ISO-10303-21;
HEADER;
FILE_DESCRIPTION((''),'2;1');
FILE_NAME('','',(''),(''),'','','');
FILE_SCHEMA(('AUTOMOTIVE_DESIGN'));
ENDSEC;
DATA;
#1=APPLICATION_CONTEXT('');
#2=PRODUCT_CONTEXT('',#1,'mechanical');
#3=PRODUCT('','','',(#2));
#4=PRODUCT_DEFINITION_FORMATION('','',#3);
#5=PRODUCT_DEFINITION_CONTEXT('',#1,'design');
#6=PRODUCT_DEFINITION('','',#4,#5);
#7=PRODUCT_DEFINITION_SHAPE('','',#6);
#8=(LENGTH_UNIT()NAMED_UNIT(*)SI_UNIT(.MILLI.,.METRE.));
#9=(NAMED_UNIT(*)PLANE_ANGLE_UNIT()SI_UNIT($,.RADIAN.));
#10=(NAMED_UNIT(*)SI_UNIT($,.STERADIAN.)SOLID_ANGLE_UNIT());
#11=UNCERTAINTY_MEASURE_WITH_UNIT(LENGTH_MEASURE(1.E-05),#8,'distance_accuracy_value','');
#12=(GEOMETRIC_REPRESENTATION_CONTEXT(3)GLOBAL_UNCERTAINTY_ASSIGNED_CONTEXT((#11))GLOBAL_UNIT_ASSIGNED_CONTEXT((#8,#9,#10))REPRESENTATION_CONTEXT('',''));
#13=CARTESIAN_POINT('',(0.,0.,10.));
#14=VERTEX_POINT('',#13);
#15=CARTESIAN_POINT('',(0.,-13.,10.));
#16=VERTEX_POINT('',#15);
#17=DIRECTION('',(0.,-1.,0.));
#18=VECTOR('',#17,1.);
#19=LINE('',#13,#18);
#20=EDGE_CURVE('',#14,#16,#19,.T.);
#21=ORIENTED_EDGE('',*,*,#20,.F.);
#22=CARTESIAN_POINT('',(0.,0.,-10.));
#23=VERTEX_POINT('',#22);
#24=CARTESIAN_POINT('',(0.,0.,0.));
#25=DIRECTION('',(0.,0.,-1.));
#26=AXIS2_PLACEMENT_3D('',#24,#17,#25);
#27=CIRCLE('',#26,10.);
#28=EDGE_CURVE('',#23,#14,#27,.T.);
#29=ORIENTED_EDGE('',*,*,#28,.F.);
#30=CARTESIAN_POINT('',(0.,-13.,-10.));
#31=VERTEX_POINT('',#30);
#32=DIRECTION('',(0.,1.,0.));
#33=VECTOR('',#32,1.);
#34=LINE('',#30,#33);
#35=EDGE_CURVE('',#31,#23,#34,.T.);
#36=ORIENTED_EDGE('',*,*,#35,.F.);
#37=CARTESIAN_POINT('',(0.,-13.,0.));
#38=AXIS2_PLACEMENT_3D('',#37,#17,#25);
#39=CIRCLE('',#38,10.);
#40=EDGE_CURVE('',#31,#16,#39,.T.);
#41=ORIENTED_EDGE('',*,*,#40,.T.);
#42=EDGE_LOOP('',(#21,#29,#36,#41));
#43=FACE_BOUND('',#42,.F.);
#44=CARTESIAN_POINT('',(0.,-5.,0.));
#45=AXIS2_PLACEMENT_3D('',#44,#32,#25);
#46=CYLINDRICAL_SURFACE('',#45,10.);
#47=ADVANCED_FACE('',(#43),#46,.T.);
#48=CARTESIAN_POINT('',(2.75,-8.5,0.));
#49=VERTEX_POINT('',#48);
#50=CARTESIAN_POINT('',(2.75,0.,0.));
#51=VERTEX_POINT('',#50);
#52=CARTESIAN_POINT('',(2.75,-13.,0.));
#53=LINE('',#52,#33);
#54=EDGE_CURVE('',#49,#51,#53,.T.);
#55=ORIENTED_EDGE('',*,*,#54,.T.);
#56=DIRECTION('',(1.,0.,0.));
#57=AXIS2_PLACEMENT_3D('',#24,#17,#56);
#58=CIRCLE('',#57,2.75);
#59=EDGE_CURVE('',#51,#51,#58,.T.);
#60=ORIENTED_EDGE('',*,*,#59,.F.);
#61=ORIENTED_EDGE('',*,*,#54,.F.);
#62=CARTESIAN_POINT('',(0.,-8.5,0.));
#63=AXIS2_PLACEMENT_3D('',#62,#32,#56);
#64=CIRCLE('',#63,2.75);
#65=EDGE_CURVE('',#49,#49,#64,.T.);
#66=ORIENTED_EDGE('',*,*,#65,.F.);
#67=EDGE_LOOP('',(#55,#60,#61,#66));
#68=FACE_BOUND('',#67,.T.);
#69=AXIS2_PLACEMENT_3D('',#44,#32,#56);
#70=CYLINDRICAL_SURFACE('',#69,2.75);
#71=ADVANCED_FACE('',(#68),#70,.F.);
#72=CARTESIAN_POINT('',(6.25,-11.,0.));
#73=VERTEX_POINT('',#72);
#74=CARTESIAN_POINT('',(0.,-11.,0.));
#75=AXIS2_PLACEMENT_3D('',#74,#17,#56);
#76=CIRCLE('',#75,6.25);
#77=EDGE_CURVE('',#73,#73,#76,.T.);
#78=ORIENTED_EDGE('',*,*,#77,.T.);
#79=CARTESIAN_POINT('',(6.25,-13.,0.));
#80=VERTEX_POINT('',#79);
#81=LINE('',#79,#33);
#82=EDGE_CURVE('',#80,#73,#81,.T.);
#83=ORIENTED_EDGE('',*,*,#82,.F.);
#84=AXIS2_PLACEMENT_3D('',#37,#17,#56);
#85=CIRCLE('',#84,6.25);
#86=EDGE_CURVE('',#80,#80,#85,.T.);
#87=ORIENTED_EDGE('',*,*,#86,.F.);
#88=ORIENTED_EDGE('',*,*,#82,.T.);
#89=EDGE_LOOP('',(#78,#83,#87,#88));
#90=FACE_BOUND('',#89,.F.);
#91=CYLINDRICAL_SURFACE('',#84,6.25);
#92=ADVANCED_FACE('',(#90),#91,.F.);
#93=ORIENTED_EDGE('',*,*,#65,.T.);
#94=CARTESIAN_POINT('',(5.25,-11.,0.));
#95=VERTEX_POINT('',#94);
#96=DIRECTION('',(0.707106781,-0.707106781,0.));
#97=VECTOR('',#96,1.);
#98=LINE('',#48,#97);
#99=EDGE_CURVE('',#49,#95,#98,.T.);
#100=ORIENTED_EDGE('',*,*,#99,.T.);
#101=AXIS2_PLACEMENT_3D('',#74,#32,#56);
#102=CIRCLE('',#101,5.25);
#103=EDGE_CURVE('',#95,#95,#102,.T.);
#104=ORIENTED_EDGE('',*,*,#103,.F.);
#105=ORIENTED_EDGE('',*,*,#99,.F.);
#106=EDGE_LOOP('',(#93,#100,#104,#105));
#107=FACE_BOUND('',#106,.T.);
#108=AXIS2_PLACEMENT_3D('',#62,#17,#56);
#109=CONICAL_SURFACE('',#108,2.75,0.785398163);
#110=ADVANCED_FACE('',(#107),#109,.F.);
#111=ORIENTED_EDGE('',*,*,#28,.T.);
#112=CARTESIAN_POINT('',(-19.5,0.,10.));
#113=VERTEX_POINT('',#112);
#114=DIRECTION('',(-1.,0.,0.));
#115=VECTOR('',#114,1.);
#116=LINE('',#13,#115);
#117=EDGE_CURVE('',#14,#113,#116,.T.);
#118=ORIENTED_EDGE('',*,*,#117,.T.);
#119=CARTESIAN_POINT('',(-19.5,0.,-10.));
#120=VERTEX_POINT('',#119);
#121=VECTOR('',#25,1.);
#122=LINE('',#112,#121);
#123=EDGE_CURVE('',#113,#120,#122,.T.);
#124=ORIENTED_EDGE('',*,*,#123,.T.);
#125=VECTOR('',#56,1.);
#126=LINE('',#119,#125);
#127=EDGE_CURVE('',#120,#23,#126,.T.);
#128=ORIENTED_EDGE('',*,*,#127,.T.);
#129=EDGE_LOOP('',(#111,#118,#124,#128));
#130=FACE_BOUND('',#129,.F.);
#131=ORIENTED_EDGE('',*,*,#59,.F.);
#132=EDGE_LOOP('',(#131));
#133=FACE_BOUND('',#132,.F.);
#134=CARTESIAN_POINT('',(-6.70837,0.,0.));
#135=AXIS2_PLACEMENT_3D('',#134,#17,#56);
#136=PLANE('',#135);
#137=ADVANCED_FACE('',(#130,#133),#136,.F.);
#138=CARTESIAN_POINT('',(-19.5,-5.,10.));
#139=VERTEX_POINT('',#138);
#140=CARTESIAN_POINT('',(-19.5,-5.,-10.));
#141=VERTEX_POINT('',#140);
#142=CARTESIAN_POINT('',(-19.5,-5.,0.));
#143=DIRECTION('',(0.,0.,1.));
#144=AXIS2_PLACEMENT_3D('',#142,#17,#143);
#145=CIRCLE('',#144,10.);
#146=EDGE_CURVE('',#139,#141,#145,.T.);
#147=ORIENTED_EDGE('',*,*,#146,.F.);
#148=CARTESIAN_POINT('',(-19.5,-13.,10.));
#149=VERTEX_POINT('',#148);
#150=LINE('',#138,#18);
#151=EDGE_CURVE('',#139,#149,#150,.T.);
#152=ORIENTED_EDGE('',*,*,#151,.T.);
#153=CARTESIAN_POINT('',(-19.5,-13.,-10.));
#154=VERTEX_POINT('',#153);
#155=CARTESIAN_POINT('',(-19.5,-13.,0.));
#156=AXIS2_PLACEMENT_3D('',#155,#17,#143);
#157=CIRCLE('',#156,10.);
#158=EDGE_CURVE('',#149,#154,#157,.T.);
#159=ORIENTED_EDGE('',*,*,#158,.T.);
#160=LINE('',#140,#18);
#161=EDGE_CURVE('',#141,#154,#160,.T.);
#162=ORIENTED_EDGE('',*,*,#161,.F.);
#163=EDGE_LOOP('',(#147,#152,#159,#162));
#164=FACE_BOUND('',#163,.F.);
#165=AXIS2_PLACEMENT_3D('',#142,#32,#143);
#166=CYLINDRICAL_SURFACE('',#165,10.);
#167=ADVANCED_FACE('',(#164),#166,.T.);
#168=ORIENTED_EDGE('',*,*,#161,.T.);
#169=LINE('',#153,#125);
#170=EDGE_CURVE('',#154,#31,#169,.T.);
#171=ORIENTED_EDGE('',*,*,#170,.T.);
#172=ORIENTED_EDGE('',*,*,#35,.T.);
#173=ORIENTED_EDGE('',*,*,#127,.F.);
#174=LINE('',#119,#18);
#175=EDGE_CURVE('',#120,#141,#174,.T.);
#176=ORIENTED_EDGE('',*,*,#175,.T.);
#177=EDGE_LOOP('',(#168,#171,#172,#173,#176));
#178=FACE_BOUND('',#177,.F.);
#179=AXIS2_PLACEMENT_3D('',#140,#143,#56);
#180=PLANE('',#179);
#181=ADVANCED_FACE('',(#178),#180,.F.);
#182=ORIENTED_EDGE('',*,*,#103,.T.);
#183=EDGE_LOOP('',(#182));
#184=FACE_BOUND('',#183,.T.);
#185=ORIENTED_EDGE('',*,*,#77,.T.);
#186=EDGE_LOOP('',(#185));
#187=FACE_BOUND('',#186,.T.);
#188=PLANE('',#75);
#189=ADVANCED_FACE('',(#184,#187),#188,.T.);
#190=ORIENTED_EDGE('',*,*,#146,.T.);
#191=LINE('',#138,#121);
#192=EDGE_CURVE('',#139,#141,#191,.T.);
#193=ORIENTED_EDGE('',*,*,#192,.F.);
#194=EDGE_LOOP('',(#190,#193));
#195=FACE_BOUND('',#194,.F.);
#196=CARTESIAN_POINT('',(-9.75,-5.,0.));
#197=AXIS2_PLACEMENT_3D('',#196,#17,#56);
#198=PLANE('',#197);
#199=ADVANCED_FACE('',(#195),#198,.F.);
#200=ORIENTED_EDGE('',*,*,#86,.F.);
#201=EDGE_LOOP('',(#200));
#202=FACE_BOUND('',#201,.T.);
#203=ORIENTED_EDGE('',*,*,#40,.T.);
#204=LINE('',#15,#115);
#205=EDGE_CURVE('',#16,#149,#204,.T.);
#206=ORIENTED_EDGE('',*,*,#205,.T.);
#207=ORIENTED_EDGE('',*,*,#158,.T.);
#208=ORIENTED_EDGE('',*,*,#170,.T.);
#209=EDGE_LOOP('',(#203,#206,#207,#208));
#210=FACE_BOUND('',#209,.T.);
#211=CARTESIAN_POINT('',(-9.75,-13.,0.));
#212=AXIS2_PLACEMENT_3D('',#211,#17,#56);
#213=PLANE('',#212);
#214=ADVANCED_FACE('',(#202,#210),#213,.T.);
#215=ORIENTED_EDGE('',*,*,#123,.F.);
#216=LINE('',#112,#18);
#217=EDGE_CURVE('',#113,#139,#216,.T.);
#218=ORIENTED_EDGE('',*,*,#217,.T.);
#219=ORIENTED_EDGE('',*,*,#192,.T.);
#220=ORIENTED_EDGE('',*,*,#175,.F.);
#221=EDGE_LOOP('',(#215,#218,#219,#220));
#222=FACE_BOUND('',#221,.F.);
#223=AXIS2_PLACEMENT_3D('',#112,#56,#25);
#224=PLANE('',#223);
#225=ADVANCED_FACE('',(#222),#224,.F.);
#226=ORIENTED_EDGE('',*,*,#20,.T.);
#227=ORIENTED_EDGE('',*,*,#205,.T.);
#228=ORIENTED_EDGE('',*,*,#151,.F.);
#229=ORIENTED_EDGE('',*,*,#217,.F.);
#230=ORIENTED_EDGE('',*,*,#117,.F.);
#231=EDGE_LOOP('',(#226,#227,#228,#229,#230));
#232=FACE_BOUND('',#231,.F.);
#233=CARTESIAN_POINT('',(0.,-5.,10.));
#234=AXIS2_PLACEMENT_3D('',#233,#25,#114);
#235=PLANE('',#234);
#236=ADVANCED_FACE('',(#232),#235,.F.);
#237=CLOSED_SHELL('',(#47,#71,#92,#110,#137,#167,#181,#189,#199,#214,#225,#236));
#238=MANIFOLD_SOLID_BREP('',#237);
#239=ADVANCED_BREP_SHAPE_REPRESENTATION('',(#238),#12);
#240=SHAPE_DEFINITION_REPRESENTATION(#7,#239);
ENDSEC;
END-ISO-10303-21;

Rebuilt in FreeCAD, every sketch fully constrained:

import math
import FreeCAD as App
import Part
import Sketcher
from FreeCAD import Vector


def edges_at(feature, points):
    """Names of the edges that pass closest to the given points."""
    edges = feature.Shape.Edges
    near = lambda p: min(range(len(edges)), key=lambda i: edges[i].distToShape(Part.Vertex(*p))[0])
    return sorted({f"Edge{near(p) + 1}" for p in points})

doc = App.newDocument("Part")
body = doc.addObject("PartDesign::Body", "Body")

# Sketch on XZ plane
sketch1 = doc.addObject("Sketcher::SketchObject", "Sketch")
body.addObject(sketch1)
sketch1.AttachmentSupport = (doc.XZ_Plane, [""])
sketch1.MapMode = "FlatFace"
sketch1.addGeometry([
    Part.ArcOfCircle(Part.Circle(Vector(0, 0, 0), Vector(0, 0, 1), 10), math.radians(-90), math.radians(90)),  # 0
    Part.LineSegment(Vector(0, 10, 0), Vector(-19.5, 10, 0)),  # 1
    Part.LineSegment(Vector(-19.5, 10, 0), Vector(-19.5, -10, 0)),  # 2
    Part.LineSegment(Vector(-19.5, -10, 0), Vector(0, -10, 0)),  # 3
    Part.Circle(Vector(0, 0, 0), Vector(0, 0, 1), 2.8),  # 4
], False)
sketch1.addConstraint([
    Sketcher.Constraint("Tangent", 0, 2, 1, 1),
    Sketcher.Constraint("Coincident", 1, 2, 2, 1),
    Sketcher.Constraint("Coincident", 2, 2, 3, 1),
    Sketcher.Constraint("Tangent", 3, 2, 0, 1),
    Sketcher.Constraint("Horizontal", 1),
    Sketcher.Constraint("Vertical", 2),
    Sketcher.Constraint("Horizontal", 3),
    Sketcher.Constraint("Coincident", 0, 3, -1, 1),
    Sketcher.Constraint("Coincident", 4, 3, -1, 1),
    Sketcher.Constraint("Radius", 0, 10.0),
    Sketcher.Constraint("Diameter", 4, 5.5),
    Sketcher.Constraint("DistanceX", 1, 2, 1, 1, 19.5),
])
pad1 = doc.addObject("PartDesign::Pad", "Pad")
body.addObject(pad1)
pad1.Profile = sketch1
pad1.Length = 5

# Sketch on XZ plane
sketch2 = doc.addObject("Sketcher::SketchObject", "Sketch001")
body.addObject(sketch2)
sketch2.AttachmentSupport = (doc.XZ_Plane, [""])
sketch2.MapMode = "FlatFace"
sketch2.AttachmentOffset = App.Placement(Vector(0, 0, 5), App.Rotation())
sketch2.addGeometry([
    Part.ArcOfCircle(Part.Circle(Vector(0, 0, 0), Vector(0, 0, 1), 10), math.radians(-90), math.radians(90)),  # 0
    Part.LineSegment(Vector(0, 10, 0), Vector(-19.5, 10, 0)),  # 1
    Part.ArcOfCircle(Part.Circle(Vector(-19.5, 0, 0), Vector(0, 0, 1), 10), math.radians(90), math.radians(270)),  # 2
    Part.LineSegment(Vector(-19.5, -10, 0), Vector(0, -10, 0)),  # 3
    Part.Circle(Vector(0, 0, 0), Vector(0, 0, 1), 2.8),  # 4
], False)
sketch2.addConstraint([
    Sketcher.Constraint("Tangent", 0, 2, 1, 1),
    Sketcher.Constraint("Tangent", 1, 2, 2, 1),
    Sketcher.Constraint("Tangent", 2, 2, 3, 1),
    Sketcher.Constraint("Tangent", 3, 2, 0, 1),
    Sketcher.Constraint("Horizontal", 1),
    Sketcher.Constraint("Horizontal", 3),
    Sketcher.Constraint("Coincident", 0, 3, -1, 1),
    Sketcher.Constraint("Coincident", 4, 3, -1, 1),
    Sketcher.Constraint("Radius", 0, 10.0),
    Sketcher.Constraint("Diameter", 4, 5.5),
    Sketcher.Constraint("DistanceX", 1, 2, 1, 1, 19.5),
])
pad2 = doc.addObject("PartDesign::Pad", "Pad001")
body.addObject(pad2)
pad2.Profile = sketch2
pad2.Length = 8

# Sketch on XZ plane
sketch3 = doc.addObject("Sketcher::SketchObject", "Sketch002")
body.addObject(sketch3)
sketch3.AttachmentSupport = (doc.XZ_Plane, [""])
sketch3.MapMode = "FlatFace"
sketch3.AttachmentOffset = App.Placement(Vector(0, 0, 13), App.Rotation())
sketch3.addGeometry(Part.Circle(Vector(0, 0, 0), Vector(0, 0, 1), 6), False)
sketch3.addConstraint([
    Sketcher.Constraint("Coincident", 0, 3, -1, 1),
    Sketcher.Constraint("Diameter", 0, 12.5),
])
pocket1 = doc.addObject("PartDesign::Pocket", "Pocket")
body.addObject(pocket1)
pocket1.Profile = sketch3
pocket1.Length = 2
doc.recompute()

chamfer = doc.addObject("PartDesign::Chamfer", "Chamfer")
body.addObject(chamfer)
chamfer.Base = (pocket1, edges_at(pocket1, [(-2.75, -11, 0)]))
chamfer.Size = 2.5

doc.recompute()
